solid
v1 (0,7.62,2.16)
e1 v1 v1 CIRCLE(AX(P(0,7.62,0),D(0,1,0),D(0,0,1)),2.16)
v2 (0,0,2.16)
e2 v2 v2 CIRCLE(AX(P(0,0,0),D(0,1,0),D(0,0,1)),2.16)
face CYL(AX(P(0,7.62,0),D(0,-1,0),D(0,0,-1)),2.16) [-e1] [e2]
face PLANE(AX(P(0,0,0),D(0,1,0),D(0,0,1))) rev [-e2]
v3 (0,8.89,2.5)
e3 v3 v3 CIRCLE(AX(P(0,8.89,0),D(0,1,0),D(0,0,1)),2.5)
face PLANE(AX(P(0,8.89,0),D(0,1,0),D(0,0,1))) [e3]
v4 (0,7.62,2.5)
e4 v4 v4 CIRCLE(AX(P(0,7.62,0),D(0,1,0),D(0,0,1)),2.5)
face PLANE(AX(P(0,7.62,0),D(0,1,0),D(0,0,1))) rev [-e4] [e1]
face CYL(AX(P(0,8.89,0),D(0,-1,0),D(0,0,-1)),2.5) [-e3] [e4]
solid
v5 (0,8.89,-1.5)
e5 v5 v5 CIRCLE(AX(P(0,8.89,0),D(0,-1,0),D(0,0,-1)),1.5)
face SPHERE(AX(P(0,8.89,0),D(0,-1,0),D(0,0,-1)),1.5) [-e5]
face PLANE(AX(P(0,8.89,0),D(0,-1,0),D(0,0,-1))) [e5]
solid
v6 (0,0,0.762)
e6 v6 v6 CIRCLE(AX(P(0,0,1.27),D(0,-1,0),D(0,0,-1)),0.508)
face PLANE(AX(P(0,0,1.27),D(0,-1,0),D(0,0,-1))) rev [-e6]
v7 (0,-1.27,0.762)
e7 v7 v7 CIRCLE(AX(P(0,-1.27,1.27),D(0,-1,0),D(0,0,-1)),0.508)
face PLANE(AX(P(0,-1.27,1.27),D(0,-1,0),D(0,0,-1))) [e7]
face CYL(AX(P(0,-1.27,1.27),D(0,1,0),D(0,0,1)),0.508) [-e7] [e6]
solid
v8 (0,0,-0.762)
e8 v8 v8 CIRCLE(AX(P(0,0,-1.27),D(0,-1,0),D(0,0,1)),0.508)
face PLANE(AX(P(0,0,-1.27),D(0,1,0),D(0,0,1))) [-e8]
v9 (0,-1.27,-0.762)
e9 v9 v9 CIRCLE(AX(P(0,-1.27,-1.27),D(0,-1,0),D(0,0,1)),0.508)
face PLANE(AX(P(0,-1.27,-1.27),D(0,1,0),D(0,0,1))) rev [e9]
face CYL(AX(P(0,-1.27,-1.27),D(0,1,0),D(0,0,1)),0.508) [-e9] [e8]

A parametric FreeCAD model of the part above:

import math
import FreeCAD as App
import Part
import Sketcher
from FreeCAD import Vector
Q = App.Units.Quantity

doc = App.newDocument("Part")
params = doc.addObject("Spreadsheet::Sheet", "Params")
for row, (alias, value) in enumerate([
    ("pad1_length", "0.3 in"),
    ("pad2_length", "0.05 in"),
    ("revolution_angle", "180 deg"),
    ("sketch4_diameter", "0.04 in"),
    ("pad3_length", "0.05 in"),
    ("sketch5_diameter", "0.04 in"),
    ("pad4_length", "0.05 in"),
], start=1):
    params.set(f"A{row}", alias)
    params.set(f"B{row}", "=" + value)
    params.setAlias(f"B{row}", alias)

body = doc.addObject("PartDesign::Body", "Body")

# Sketch on XZ plane
sketch1 = body.newObject("Sketcher::SketchObject", "Sketch")
sketch1.AttachmentSupport = (doc.getObject("XZ_Plane"), [""])
sketch1.MapMode = "FlatFace"
sketch1.addGeometry(Part.Circle(Vector(0, 0, 0), Vector(0, 0, 1), 2.16), False)
sketch1.addConstraint([
    Sketcher.Constraint("Coincident", 0, 3, -1, 1),
    Sketcher.Constraint("Diameter", 0, 4.32),
])
pad1 = body.newObject("PartDesign::Pad", "Pad")
pad1.Profile = sketch1
pad1.setExpression("Length", "Params.pad1_length")
pad1.Reversed = True

# Sketch on XZ plane
sketch2 = body.newObject("Sketcher::SketchObject", "Sketch001")
sketch2.AttachmentSupport = (doc.getObject("XZ_Plane"), [""])
sketch2.MapMode = "FlatFace"
sketch2.AttachmentOffset = App.Placement(Vector(0, 0, -0.3 * 25.4), App.Rotation())
sketch2.addGeometry(Part.Circle(Vector(0, 0, 0), Vector(0, 0, 1), 2.5), False)
sketch2.addConstraint([
    Sketcher.Constraint("Coincident", 0, 3, -1, 1),
    Sketcher.Constraint("Diameter", 0, 5.0),
])
pad2 = body.newObject("PartDesign::Pad", "Pad001")
pad2.Profile = sketch2
pad2.setExpression("Length", "Params.pad2_length")
pad2.Reversed = True
body2 = doc.addObject("PartDesign::Body", "Body001")

# Sketch on XZ plane
sketch3 = body2.newObject("Sketcher::SketchObject", "Sketch002")
sketch3.AttachmentSupport = (doc.getObject("XZ_Plane001"), [""])
sketch3.MapMode = "FlatFace"
sketch3.AttachmentOffset = App.Placement(Vector(0, 0, -0.35 * 25.4), App.Rotation())
sketch3.addGeometry([
    Part.LineSegment(Vector(-1.5, 0, 0), Vector(1.5, 0, 0)),
    Part.ArcOfCircle(Part.Circle(Vector(0, 0, 0), Vector(0, 0, 1), 1.5), math.radians(180), math.radians(360)),
], False)
sketch3.addConstraint([
    Sketcher.Constraint("Coincident", 0, 1, 1, 1),
    Sketcher.Constraint("Coincident", 1, 2, 0, 2),
    Sketcher.Constraint("Horizontal", 0),
    Sketcher.Constraint("Coincident", 1, 3, -1, 1),
    Sketcher.Constraint("PointOnObject", 0, 1, -1),
    Sketcher.Constraint("Radius", 1, 1.5),
])
revolution = body2.newObject("PartDesign::Revolution", "Revolution")
revolution.Profile = sketch3
revolution.ReferenceAxis = (sketch3, ["H_Axis"])
revolution.setExpression("Angle", "Params.revolution_angle")
body3 = doc.addObject("PartDesign::Body", "Body002")

# Sketch on XZ plane
sketch4 = body3.newObject("Sketcher::SketchObject", "Sketch003")
sketch4.AttachmentSupport = (doc.getObject("XZ_Plane002"), [""])
sketch4.MapMode = "FlatFace"
sketch4.addGeometry(Part.Circle(Vector(0, 1.27, 0), Vector(0, 0, 1), 0.508), False)
sketch4.addConstraint([
    Sketcher.Constraint("PointOnObject", 0, 3, -2),
    Sketcher.Constraint("Diameter", 0, Q("0.04 in")),
    Sketcher.Constraint("DistanceY", -1, 1, 0, 3, Q("0.05 in")),
])
sketch4.setExpression("Constraints[1]", "Params.sketch4_diameter")
pad3 = body3.newObject("PartDesign::Pad", "Pad002")
pad3.Profile = sketch4
pad3.setExpression("Length", "Params.pad3_length")
body4 = doc.addObject("PartDesign::Body", "Body003")

# Sketch on XZ plane
sketch5 = body4.newObject("Sketcher::SketchObject", "Sketch004")
sketch5.AttachmentSupport = (doc.getObject("XZ_Plane003"), [""])
sketch5.MapMode = "FlatFace"
sketch5.addGeometry(Part.Circle(Vector(0, -1.27, 0), Vector(0, 0, 1), 0.508), False)
sketch5.addConstraint([
    Sketcher.Constraint("PointOnObject", 0, 3, -2),
    Sketcher.Constraint("Diameter", 0, Q("0.04 in")),
    Sketcher.Constraint("DistanceY", 0, 3, -1, 1, Q("0.05 in")),
])
sketch5.setExpression("Constraints[1]", "Params.sketch5_diameter")
pad4 = body4.newObject("PartDesign::Pad", "Pad003")
pad4.Profile = sketch5
pad4.setExpression("Length", "Params.pad4_length")

doc.recompute()
